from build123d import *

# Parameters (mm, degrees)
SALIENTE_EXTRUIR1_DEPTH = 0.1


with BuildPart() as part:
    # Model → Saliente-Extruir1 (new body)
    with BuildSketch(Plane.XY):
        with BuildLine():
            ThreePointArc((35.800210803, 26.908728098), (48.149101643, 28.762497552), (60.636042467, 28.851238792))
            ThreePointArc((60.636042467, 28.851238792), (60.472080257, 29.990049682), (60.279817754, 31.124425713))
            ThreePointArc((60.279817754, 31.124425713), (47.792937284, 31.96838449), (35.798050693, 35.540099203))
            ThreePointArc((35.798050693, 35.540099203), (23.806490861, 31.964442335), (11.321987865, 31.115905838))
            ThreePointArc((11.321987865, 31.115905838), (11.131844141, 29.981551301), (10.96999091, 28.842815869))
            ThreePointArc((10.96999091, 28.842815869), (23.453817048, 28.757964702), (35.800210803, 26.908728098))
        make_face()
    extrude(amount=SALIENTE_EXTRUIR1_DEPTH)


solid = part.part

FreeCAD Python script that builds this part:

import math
import FreeCAD as App
import Part
import Sketcher
from FreeCAD import Vector
Q = App.Units.Quantity

doc = App.newDocument("Part")
body = doc.addObject("PartDesign::Body", "Body")

# Sketch on XY plane
sketch1 = body.newObject("Sketcher::SketchObject", "Sketch")
sketch1.AttachmentSupport = (doc.getObject("XY_Plane"), [""])
sketch1.MapMode = "FlatFace"
sketch1.addGeometry(Part.ArcOfCircle(Part.Circle(Vector(55, -59, 0), Vector(0, 0, 1), 88.1), math.radians(86.34), math.radians(102.6)), False)
sketch1.addGeometry(Part.ArcOfCircle(Part.Circle(Vector(14.8, 22.8, 0), Vector(0, 0, 1), 46.2), math.radians(7.48), math.radians(10.33)), False)
sketch1.addGeometry(Part.ArcOfCircle(Part.Circle(Vector(57.8, 87.6, 0), Vector(0, 0, 1), 56.5), math.radians(-113), math.radians(-88)), False)
sketch1.addGeometry(Part.ArcOfCircle(Part.Circle(Vector(13.8, 87.6, 0), Vector(0, 0, 1), 56.5), math.radians(-92), math.radians(-67)), False)
sketch1.addGeometry(Part.ArcOfCircle(Part.Circle(Vector(56.8, 22.9, 0), Vector(0, 0, 1), 46.2), math.radians(169.77), math.radians(172.62)), False)
sketch1.addGeometry(Part.ArcOfCircle(Part.Circle(Vector(16.6, -59, 0), Vector(0, 0, 1), 88.1), math.radians(77.42), math.radians(93.68)), False)
sketch1.addConstraint(Sketcher.Constraint("Coincident", 0, 1, 1, 1))
sketch1.addConstraint(Sketcher.Constraint("Coincident", 1, 2, 2, 2))
sketch1.addConstraint(Sketcher.Constraint("Coincident", 2, 1, 3, 2))
sketch1.addConstraint(Sketcher.Constraint("Coincident", 3, 1, 4, 1))
sketch1.addConstraint(Sketcher.Constraint("Coincident", 4, 2, 5, 2))
sketch1.addConstraint(Sketcher.Constraint("Coincident", 5, 1, 0, 2))
sketch1.addConstraint(Sketcher.Constraint("Radius", 1, Q("46.212001 mm")))
sketch1.addConstraint(Sketcher.Constraint("Radius", 5, Q("88.06605 mm")))
sketch1.addConstraint(Sketcher.Constraint("Radius", 0, Q("88.076095 mm")))
sketch1.addConstraint(Sketcher.Constraint("Radius", 2, Q("56.510618 mm")))
sketch1.addConstraint(Sketcher.Constraint("Radius", 3, Q("56.501305 mm")))
sketch1.addConstraint(Sketcher.Constraint("Radius", 4, Q("46.211035 mm")))
sketch1.addConstraint(Sketcher.Constraint("DistanceY", -1, 1, 2, 1, Q("35.540099 mm")))
sketch1.addConstraint(Sketcher.Constraint("DistanceY", 3, 3, 2, 3, Q("0.0169 mm")))
sketch1.addConstraint(Sketcher.Constraint("DistanceY", -1, 1, 1, 3, Q("22.835611 mm")))
sketch1.addConstraint(Sketcher.Constraint("DistanceY", -1, 1, 2, 3, Q("87.581642 mm")))
sketch1.addConstraint(Sketcher.Constraint("DistanceX", -1, 1, 5, 3, Q("16.614848 mm")))
sketch1.addConstraint(Sketcher.Constraint("DistanceY", -1, 1, 0, 1, Q("28.851239 mm")))
sketch1.addConstraint(Sketcher.Constraint("DistanceX", -1, 1, 2, 1, Q("35.798051 mm")))
sketch1.addConstraint(Sketcher.Constraint("DistanceX", -1, 1, 4, 2, Q("10.969991 mm")))
sketch1.addConstraint(Sketcher.Constraint("DistanceX", -1, 1, 5, 1, Q("35.800211 mm")))
sketch1.addConstraint(Sketcher.Constraint("DistanceY", -1, 1, 5, 1, Q("26.908728 mm")))
sketch1.addConstraint(Sketcher.Constraint("DistanceX", 1, 3, 0, 3, Q("40.199659 mm")))
sketch1.addConstraint(Sketcher.Constraint("DistanceX", 1, 3, 4, 3, Q("41.981329 mm")))
pad1 = body.newObject("PartDesign::Pad", "Pad")
pad1.Profile = sketch1
pad1.Length = 0.1

doc.recompute()
